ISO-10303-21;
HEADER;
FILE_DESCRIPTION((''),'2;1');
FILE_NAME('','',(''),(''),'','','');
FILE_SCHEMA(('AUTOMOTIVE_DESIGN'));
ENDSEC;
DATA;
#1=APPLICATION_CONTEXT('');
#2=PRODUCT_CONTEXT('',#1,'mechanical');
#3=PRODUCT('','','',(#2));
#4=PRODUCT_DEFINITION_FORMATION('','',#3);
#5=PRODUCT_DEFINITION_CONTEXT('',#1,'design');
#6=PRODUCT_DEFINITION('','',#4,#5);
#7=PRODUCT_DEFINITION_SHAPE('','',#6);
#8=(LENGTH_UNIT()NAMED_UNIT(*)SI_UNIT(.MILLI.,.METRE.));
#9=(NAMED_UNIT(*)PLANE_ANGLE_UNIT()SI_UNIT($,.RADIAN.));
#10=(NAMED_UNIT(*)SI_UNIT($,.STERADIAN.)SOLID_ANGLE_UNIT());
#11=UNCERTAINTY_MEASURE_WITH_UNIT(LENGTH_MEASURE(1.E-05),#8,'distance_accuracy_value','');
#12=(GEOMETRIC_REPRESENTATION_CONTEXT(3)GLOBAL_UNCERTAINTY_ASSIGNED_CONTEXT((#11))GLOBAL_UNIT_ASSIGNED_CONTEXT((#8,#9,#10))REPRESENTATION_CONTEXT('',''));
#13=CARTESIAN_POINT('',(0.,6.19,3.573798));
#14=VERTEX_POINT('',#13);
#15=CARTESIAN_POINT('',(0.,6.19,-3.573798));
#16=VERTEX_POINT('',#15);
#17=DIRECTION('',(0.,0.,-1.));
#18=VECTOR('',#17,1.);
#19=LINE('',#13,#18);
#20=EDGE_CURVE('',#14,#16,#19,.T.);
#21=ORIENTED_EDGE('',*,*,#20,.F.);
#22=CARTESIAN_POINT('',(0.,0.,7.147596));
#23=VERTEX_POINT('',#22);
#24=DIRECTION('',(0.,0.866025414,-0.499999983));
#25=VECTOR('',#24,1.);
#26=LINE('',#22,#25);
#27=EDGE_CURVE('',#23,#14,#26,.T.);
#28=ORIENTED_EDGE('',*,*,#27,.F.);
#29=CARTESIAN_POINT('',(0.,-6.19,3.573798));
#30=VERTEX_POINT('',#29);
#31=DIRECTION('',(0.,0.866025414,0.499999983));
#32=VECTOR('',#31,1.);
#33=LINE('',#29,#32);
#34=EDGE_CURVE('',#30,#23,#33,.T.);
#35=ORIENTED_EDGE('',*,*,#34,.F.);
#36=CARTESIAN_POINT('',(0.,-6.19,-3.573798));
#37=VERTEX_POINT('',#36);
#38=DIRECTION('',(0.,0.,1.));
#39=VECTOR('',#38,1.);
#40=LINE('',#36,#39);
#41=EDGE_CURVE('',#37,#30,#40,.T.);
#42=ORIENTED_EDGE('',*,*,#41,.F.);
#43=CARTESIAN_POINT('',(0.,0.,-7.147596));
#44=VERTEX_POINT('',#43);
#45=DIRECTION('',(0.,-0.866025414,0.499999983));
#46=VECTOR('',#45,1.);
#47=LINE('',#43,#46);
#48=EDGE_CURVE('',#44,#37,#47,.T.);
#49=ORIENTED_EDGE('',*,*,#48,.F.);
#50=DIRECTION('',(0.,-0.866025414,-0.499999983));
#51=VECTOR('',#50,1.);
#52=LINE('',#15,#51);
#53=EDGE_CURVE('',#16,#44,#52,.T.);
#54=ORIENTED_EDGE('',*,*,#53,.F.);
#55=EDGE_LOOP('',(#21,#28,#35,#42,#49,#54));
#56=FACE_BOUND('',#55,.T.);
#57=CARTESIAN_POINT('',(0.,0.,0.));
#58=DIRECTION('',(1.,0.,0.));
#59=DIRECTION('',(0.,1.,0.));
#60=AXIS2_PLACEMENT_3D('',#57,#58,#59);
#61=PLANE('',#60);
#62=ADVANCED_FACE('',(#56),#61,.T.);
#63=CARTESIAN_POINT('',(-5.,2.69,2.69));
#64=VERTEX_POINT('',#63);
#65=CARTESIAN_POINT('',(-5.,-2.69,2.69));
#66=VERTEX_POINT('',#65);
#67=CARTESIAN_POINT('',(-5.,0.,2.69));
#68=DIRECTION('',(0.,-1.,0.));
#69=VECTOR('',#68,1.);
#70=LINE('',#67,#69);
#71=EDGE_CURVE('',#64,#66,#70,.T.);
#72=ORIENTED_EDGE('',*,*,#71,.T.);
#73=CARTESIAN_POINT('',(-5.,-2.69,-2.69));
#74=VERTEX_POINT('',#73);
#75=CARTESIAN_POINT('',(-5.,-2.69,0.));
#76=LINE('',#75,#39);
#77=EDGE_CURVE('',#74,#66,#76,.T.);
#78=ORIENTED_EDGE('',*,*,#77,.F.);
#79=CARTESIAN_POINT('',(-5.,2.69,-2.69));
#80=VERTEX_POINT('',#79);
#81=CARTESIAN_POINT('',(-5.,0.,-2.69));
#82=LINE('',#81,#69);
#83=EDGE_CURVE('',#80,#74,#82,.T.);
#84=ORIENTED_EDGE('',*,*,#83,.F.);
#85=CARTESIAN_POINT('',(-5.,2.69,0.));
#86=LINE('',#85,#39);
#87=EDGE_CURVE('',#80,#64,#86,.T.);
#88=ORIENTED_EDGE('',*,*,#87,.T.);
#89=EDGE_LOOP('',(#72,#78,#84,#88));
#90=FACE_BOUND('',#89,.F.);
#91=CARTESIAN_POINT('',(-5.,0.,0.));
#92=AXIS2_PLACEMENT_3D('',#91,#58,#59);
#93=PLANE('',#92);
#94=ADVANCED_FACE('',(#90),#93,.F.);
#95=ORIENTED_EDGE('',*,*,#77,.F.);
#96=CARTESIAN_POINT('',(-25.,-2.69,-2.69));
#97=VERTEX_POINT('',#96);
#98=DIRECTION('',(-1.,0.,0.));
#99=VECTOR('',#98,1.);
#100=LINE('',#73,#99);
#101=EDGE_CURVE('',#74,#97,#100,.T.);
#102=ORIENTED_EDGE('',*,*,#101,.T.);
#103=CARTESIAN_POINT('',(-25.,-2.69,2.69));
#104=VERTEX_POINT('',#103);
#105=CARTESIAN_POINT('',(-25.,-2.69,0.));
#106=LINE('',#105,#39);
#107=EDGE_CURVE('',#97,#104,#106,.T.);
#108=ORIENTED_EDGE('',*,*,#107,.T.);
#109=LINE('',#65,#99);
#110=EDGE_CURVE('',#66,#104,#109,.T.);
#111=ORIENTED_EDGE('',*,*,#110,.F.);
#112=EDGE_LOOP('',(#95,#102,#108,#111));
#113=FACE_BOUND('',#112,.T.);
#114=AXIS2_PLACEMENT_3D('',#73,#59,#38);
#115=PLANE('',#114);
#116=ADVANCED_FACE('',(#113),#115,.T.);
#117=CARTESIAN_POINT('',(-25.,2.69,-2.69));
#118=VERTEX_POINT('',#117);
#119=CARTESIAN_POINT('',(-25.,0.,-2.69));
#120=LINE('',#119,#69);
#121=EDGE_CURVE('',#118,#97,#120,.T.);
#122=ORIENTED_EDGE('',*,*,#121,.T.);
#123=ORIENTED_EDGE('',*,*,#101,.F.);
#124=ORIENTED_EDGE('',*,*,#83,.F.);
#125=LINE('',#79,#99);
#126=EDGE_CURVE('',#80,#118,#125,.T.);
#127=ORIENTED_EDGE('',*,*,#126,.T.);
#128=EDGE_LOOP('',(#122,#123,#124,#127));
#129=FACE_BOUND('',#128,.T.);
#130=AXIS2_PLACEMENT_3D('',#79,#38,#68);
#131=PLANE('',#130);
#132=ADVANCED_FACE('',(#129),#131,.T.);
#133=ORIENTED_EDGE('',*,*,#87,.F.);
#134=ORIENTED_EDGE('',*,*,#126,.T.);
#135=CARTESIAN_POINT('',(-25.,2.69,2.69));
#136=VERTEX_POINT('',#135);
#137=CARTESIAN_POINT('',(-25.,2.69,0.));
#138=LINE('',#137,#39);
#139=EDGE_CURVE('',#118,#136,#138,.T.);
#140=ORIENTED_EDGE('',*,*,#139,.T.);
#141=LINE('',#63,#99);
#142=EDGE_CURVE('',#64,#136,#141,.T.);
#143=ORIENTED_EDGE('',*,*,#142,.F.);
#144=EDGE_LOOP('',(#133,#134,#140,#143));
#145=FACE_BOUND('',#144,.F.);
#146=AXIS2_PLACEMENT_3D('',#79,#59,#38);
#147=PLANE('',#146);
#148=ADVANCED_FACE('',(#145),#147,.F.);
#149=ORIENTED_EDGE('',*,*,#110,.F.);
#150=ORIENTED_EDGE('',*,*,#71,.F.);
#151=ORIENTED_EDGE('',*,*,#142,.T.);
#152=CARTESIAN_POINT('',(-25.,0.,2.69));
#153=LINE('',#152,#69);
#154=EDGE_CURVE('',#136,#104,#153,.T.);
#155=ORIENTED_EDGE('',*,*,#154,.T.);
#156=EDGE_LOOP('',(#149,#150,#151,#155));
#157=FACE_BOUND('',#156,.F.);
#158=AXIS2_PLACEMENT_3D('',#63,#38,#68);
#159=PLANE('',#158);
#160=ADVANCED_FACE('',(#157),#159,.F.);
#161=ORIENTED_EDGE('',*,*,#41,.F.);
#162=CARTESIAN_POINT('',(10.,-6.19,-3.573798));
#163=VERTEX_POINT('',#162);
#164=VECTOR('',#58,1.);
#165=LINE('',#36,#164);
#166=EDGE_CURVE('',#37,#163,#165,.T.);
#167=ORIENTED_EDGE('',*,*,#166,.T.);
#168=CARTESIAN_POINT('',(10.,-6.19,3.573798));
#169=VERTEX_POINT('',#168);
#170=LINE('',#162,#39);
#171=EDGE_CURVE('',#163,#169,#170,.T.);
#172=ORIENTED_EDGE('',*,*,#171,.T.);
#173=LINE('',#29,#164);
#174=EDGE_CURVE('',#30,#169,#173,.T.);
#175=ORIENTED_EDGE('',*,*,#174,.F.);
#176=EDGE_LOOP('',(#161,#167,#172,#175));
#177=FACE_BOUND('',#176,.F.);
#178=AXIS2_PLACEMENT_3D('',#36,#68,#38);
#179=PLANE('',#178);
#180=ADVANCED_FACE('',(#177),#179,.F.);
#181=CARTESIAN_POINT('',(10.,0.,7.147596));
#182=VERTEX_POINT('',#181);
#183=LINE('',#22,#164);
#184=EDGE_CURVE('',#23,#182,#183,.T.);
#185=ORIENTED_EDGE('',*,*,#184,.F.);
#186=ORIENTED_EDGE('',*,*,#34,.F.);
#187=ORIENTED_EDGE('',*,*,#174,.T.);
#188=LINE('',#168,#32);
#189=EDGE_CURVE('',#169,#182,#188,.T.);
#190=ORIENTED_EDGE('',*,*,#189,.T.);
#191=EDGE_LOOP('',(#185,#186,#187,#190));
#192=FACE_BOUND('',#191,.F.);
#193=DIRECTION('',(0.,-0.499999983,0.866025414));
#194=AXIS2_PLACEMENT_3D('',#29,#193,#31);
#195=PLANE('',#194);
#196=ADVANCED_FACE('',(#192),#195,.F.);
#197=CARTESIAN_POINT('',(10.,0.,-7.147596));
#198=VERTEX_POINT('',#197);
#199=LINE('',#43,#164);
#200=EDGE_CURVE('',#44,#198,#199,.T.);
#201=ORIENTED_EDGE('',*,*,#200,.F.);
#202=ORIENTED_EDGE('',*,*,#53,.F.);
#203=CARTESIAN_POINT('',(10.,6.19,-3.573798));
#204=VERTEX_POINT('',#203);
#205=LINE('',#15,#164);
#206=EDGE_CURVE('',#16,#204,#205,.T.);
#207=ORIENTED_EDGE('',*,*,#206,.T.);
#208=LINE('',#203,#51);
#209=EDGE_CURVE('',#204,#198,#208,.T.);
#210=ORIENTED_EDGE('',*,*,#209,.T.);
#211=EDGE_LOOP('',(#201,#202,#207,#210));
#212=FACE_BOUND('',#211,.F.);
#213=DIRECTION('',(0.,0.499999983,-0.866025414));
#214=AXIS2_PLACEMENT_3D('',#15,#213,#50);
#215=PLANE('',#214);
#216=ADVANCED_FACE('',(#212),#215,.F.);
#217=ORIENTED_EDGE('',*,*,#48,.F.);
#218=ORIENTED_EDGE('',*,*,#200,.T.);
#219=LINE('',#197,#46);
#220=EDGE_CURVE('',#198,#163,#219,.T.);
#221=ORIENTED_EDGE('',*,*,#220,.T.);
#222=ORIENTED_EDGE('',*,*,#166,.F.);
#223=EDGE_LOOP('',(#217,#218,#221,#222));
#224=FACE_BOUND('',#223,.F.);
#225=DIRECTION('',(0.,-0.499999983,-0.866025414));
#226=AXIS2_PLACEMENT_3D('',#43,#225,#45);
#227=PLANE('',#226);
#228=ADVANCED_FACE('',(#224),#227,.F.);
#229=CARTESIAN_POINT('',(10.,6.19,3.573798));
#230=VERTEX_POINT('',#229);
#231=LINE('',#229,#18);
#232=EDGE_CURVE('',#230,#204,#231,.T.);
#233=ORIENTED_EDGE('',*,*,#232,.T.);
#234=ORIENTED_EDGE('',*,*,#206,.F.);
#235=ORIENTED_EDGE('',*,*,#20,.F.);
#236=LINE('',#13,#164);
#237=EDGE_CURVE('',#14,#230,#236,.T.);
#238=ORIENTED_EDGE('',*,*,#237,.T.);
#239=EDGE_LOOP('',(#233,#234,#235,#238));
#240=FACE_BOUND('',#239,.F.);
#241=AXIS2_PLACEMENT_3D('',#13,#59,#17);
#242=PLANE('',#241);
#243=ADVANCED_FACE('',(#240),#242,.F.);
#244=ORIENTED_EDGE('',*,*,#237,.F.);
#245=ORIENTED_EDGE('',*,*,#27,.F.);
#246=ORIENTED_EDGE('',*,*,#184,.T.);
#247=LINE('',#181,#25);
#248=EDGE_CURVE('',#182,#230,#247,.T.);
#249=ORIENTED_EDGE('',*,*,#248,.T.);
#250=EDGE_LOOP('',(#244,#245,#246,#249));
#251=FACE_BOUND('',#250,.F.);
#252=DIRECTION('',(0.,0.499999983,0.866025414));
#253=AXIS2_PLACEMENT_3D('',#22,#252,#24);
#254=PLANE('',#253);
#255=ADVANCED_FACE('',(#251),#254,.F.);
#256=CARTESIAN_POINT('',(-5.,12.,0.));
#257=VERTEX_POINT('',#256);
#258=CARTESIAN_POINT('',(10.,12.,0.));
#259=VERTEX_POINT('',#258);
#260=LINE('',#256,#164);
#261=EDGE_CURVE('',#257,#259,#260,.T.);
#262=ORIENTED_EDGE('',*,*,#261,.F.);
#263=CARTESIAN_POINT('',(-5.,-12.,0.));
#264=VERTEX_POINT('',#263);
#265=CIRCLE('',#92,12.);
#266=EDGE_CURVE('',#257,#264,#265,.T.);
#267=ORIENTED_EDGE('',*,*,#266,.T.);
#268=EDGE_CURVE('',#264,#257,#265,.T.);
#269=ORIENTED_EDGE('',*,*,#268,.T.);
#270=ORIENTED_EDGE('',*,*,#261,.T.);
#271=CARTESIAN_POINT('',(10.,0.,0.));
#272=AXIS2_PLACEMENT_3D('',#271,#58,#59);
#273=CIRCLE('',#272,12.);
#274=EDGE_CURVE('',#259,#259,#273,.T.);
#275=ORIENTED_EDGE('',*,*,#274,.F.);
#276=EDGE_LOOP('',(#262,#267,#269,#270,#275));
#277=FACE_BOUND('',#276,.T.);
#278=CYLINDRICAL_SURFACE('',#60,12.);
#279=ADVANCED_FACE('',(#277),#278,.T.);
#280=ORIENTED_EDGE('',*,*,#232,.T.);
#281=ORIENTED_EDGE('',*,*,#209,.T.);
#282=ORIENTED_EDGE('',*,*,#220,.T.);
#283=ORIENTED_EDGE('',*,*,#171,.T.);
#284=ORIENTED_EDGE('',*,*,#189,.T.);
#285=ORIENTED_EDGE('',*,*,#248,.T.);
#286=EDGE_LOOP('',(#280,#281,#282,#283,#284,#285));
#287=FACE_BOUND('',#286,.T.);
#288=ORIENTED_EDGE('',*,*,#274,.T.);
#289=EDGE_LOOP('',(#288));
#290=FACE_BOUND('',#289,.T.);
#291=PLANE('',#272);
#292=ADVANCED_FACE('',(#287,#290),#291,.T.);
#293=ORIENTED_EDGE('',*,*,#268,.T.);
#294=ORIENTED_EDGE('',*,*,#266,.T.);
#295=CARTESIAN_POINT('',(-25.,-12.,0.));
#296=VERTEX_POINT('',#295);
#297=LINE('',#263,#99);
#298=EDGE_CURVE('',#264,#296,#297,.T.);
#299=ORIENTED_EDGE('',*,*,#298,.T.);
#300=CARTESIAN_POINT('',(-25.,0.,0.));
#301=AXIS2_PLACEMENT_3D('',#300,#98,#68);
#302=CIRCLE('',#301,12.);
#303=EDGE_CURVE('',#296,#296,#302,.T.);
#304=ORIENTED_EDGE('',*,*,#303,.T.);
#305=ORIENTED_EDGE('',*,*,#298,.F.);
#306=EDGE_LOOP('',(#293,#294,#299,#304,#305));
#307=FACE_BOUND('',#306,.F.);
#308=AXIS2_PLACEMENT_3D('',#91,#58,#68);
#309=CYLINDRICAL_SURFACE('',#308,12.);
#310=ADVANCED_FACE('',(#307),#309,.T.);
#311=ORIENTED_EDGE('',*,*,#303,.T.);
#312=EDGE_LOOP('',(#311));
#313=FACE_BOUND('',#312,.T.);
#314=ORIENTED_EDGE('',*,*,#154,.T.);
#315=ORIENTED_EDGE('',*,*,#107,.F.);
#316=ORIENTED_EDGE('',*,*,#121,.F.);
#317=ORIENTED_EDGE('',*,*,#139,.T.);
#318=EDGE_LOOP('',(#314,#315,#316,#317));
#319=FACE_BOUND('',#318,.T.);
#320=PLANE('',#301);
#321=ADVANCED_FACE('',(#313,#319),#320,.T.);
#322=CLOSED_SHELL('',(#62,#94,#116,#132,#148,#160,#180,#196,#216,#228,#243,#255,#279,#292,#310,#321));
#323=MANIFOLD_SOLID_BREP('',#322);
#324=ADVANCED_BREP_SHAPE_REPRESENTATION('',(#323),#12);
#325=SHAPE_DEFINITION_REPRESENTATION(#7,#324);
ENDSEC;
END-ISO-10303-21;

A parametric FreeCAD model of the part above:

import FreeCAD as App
import Part
import Sketcher

V = App.Vector
Q = App.Units.Quantity

doc = App.newDocument("Part")
body = doc.addObject("PartDesign::Body", "Body")

sketch1 = body.newObject("Sketcher::SketchObject", "Sketch")
sketch1.AttachmentSupport = (doc.getObject("YZ_Plane"), [""])
sketch1.MapMode = "FlatFace"
sketch1.addGeometry([
    Part.Circle(V(0, 0, 0), V(0, 0, 1), 12),
    Part.LineSegment(V(-6.19, 3.573798, 0), V(0, 7.147596, 0)),
    Part.LineSegment(V(0, 7.147596, 0), V(6.19, 3.573798, 0)),
    Part.LineSegment(V(6.19, 3.573798, 0), V(6.19, -3.573798, 0)),
    Part.LineSegment(V(6.19, -3.573798, 0), V(0, -7.147596, 0)),
    Part.LineSegment(V(0, -7.147596, 0), V(-6.19, -3.573798, 0)),
    Part.LineSegment(V(-6.19, -3.573798, 0), V(-6.19, 3.573798, 0)),
], False)
sketch1.addConstraint([
    Sketcher.Constraint("Coincident", 1, 2, 2, 1),
    Sketcher.Constraint("Coincident", 2, 2, 3, 1),
    Sketcher.Constraint("Coincident", 3, 2, 4, 1),
    Sketcher.Constraint("Coincident", 4, 2, 5, 1),
    Sketcher.Constraint("Coincident", 5, 2, 6, 1),
    Sketcher.Constraint("Coincident", 6, 2, 1, 1),
    Sketcher.Constraint("Vertical", 3),
    Sketcher.Constraint("Vertical", 6),
    Sketcher.Constraint("Coincident", 0, 3, -1, 1),
    Sketcher.Constraint("Symmetric", 1, 2, 4, 2, -1, 1),
    Sketcher.Constraint("Symmetric", 2, 2, 5, 2, -1, 1),
    Sketcher.Constraint("PointOnObject", 1, 2, -2),
    Sketcher.Constraint("Parallel", 1, 4),
    Sketcher.Constraint("Horizontal", 3, 2, 5, 2),
    Sketcher.Constraint("Diameter", 0, 24.0),
    Sketcher.Constraint("Angle", 1, Q("29.999999 deg")),
    Sketcher.Constraint("DistanceX", -1, 1, 2, 2, 6.19),
    Sketcher.Constraint("DistanceY", -1, 1, 2, 2, 3.573798),
])
pad1 = body.newObject("PartDesign::Pad", "Pad")
pad1.Profile = sketch1
pad1.Length = 10

sketch2 = body.newObject("Sketcher::SketchObject", "Sketch001")
sketch2.AttachmentSupport = (doc.getObject("YZ_Plane"), [""])
sketch2.MapMode = "FlatFace"
sketch2.addGeometry(Part.Circle(V(0, 0, 0), V(0, 0, 1), 12), False)
sketch2.addConstraint([
    Sketcher.Constraint("Coincident", 0, 3, -1, 1),
    Sketcher.Constraint("Diameter", 0, 24.0),
])
pad2 = body.newObject("PartDesign::Pad", "Pad001")
pad2.Profile = sketch2
pad2.Length = 5
pad2.Reversed = True

sketch3 = body.newObject("Sketcher::SketchObject", "Sketch002")
sketch3.AttachmentSupport = (doc.getObject("YZ_Plane"), [""])
sketch3.MapMode = "FlatFace"
sketch3.AttachmentOffset = App.Placement(V(0, 0, -5), App.Rotation())
sketch3.addGeometry([
    Part.Circle(V(0, 0, 0), V(0, 0, 1), 12),
    Part.LineSegment(V(-2.69, -2.69, 0), V(2.69, -2.69, 0)),
    Part.LineSegment(V(2.69, -2.69, 0), V(2.69, 2.69, 0)),
    Part.LineSegment(V(2.69, 2.69, 0), V(-2.69, 2.69, 0)),
    Part.LineSegment(V(-2.69, 2.69, 0), V(-2.69, -2.69, 0)),
], False)
sketch3.addConstraint([
    Sketcher.Constraint("Coincident", 1, 2, 2, 1),
    Sketcher.Constraint("Coincident", 2, 2, 3, 1),
    Sketcher.Constraint("Coincident", 3, 2, 4, 1),
    Sketcher.Constraint("Coincident", 4, 2, 1, 1),
    Sketcher.Constraint("Horizontal", 1),
    Sketcher.Constraint("Vertical", 2),
    Sketcher.Constraint("Horizontal", 3),
    Sketcher.Constraint("Vertical", 4),
    Sketcher.Constraint("Coincident", 0, 3, -1, 1),
    Sketcher.Constraint("Symmetric", 1, 2, 3, 2, -1, 1),
    Sketcher.Constraint("Equal", 3, 2),
    Sketcher.Constraint("Diameter", 0, 24.0),
    Sketcher.Constraint("DistanceX", 1, 1, 1, 2, 5.38),
])
pad3 = body.newObject("PartDesign::Pad", "Pad002")
pad3.Profile = sketch3
pad3.Length = 20
pad3.Reversed = True

doc.recompute()
